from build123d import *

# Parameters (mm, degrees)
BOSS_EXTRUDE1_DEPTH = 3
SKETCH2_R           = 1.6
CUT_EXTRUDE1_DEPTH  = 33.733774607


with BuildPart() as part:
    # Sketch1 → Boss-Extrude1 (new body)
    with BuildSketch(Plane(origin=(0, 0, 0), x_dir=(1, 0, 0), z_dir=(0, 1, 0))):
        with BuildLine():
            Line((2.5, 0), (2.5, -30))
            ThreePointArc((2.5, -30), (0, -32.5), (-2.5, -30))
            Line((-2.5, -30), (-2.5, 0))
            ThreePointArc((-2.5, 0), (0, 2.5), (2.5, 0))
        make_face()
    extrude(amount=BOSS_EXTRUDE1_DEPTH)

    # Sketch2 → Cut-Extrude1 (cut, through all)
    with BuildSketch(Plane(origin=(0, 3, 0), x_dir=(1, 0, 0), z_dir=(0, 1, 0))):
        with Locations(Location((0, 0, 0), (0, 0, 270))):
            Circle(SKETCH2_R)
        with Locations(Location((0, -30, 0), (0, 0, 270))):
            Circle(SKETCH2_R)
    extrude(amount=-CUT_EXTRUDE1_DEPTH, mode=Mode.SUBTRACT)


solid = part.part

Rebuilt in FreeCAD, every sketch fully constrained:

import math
import FreeCAD as App
import Part
import Sketcher
from FreeCAD import Vector

doc = App.newDocument("Part")
body = doc.addObject("PartDesign::Body", "Body")

sketch1 = body.newObject("Sketcher::SketchObject", "Sketch")
sketch1.AttachmentSupport = (doc.getObject("XZ_Plane"), [""])
sketch1.MapMode = "FlatFace"
sketch1.addGeometry([
    Part.LineSegment(Vector(2.5, 30, 0), Vector(2.5, 0, 0)),
    Part.ArcOfCircle(Part.Circle(Vector(0, 0, 0), Vector(0, 0, 1), 2.5), math.radians(180), math.radians(360)),
    Part.LineSegment(Vector(-2.5, 0, 0), Vector(-2.5, 30, 0)),
    Part.ArcOfCircle(Part.Circle(Vector(0, 30, 0), Vector(0, 0, 1), 2.5), math.radians(0), math.radians(180)),
], False)
sketch1.addConstraint([
    Sketcher.Constraint("Tangent", 0, 2, 1, 2),
    Sketcher.Constraint("Tangent", 1, 1, 2, 1),
    Sketcher.Constraint("Tangent", 2, 2, 3, 2),
    Sketcher.Constraint("Tangent", 3, 1, 0, 1),
    Sketcher.Constraint("Vertical", 0),
    Sketcher.Constraint("Vertical", 2),
    Sketcher.Constraint("Coincident", 1, 3, -1, 1),
    Sketcher.Constraint("Radius", 1, 2.5),
    Sketcher.Constraint("DistanceY", 0, 2, 0, 1, 30.0),
])
pad1 = body.newObject("PartDesign::Pad", "Pad")
pad1.Profile = sketch1
pad1.Length = 3
pad1.Reversed = True

sketch2 = body.newObject("Sketcher::SketchObject", "Sketch001")
sketch2.AttachmentSupport = (doc.getObject("XZ_Plane"), [""])
sketch2.MapMode = "FlatFace"
sketch2.AttachmentOffset = App.Placement(Vector(0, 0, -3), App.Rotation())
sketch2.addGeometry([
    Part.Circle(Vector(0, 0, 0), Vector(0, 0, 1), 1.6),
    Part.Circle(Vector(0, 30, 0), Vector(0, 0, 1), 1.6),
], False)
sketch2.addConstraint([
    Sketcher.Constraint("Coincident", 0, 3, -1, 1),
    Sketcher.Constraint("Equal", 0, 1),
    Sketcher.Constraint("PointOnObject", 1, 3, -2),
    Sketcher.Constraint("Diameter", 0, 3.2),
    Sketcher.Constraint("DistanceY", -1, 1, 1, 3, 30.0),
])
pocket1 = body.newObject("PartDesign::Pocket", "Pocket")
pocket1.Profile = sketch2
pocket1.Type = "ThroughAll"
pocket1.Reversed = True

doc.recompute()
